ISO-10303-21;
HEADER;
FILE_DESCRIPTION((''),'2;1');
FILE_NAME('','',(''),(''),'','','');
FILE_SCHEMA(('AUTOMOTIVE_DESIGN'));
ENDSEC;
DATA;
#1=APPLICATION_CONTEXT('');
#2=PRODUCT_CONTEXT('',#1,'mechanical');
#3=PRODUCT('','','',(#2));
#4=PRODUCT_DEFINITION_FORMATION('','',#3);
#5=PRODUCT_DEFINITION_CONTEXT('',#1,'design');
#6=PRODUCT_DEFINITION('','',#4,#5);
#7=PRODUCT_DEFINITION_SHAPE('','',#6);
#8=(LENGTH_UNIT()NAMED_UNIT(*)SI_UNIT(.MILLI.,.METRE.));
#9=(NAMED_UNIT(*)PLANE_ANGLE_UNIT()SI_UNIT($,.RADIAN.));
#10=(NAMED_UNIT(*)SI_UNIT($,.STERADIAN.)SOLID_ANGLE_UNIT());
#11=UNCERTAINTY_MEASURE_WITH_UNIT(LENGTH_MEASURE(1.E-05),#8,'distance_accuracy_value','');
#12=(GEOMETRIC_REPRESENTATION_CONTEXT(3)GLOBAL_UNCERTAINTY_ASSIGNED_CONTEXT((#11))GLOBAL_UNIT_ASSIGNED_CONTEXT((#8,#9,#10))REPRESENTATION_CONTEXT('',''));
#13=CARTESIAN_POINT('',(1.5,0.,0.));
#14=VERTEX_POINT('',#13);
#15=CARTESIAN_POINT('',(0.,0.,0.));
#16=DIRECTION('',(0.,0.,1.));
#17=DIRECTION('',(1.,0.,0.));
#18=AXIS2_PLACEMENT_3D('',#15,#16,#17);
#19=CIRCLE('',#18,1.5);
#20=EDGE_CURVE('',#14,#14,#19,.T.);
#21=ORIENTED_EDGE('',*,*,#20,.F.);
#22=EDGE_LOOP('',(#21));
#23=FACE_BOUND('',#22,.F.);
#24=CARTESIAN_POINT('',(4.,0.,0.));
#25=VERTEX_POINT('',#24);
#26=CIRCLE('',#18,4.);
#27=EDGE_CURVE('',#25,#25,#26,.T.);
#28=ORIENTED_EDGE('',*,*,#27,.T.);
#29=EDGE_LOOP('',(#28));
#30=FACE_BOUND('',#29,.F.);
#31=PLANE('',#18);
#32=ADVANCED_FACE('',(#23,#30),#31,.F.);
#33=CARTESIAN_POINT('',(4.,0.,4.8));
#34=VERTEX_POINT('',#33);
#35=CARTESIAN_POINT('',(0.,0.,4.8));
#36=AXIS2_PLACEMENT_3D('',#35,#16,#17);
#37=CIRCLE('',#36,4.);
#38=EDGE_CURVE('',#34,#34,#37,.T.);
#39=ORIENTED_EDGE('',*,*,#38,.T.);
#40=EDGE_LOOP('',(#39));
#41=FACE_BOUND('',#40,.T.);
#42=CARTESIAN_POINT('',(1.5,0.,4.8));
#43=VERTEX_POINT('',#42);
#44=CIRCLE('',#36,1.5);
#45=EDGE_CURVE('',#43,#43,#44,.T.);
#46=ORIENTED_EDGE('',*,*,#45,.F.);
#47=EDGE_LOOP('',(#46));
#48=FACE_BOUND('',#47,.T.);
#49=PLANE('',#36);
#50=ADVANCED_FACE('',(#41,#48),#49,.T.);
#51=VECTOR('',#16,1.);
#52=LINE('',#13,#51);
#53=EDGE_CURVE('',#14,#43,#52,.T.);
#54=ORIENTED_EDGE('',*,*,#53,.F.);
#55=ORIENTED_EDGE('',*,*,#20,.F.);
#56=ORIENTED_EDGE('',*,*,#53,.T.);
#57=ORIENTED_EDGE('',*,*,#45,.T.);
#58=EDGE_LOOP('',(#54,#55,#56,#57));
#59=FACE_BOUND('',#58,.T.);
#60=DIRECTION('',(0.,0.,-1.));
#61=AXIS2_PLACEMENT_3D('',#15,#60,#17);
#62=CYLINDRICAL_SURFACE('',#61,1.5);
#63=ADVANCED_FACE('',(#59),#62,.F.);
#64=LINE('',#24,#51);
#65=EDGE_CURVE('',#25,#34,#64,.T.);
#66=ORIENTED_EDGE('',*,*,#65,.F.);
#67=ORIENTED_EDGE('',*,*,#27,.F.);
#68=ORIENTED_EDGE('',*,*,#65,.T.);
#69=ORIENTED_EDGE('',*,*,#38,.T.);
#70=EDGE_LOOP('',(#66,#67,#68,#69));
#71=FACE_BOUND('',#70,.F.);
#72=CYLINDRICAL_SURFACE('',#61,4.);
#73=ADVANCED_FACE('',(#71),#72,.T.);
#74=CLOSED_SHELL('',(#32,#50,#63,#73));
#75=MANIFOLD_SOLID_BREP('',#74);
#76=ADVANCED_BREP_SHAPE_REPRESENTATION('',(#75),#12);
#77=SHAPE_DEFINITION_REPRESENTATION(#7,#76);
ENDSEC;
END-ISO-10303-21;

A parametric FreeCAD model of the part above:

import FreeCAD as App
import Part
import Sketcher
from FreeCAD import Vector
Q = App.Units.Quantity

doc = App.newDocument("Part")
body = doc.addObject("PartDesign::Body", "Body")

# Sketch on XY plane
sketch1 = doc.addObject("Sketcher::SketchObject", "Sketch")
body.addObject(sketch1)
sketch1.AttachmentSupport = (doc.XY_Plane, [""])
sketch1.MapMode = "FlatFace"
sketch1.addGeometry([
    Part.Circle(Vector(0, 0, 0), Vector(0, 0, 1), 4),
    Part.Circle(Vector(0, 0, 0), Vector(0, 0, 1), 1.5),
], False)
sketch1.addConstraint([
    Sketcher.Constraint("Coincident", 0, 3, -1, 1),
    Sketcher.Constraint("Coincident", 1, 3, -1, 1),
    Sketcher.Constraint("Diameter", 0, Q("8 mm")),
    Sketcher.Constraint("Diameter", 1, Q("3 mm")),
])
pad1 = doc.addObject("PartDesign::Pad", "Pad")
body.addObject(pad1)
pad1.Profile = sketch1
pad1.Length = 4.8

doc.recompute()
